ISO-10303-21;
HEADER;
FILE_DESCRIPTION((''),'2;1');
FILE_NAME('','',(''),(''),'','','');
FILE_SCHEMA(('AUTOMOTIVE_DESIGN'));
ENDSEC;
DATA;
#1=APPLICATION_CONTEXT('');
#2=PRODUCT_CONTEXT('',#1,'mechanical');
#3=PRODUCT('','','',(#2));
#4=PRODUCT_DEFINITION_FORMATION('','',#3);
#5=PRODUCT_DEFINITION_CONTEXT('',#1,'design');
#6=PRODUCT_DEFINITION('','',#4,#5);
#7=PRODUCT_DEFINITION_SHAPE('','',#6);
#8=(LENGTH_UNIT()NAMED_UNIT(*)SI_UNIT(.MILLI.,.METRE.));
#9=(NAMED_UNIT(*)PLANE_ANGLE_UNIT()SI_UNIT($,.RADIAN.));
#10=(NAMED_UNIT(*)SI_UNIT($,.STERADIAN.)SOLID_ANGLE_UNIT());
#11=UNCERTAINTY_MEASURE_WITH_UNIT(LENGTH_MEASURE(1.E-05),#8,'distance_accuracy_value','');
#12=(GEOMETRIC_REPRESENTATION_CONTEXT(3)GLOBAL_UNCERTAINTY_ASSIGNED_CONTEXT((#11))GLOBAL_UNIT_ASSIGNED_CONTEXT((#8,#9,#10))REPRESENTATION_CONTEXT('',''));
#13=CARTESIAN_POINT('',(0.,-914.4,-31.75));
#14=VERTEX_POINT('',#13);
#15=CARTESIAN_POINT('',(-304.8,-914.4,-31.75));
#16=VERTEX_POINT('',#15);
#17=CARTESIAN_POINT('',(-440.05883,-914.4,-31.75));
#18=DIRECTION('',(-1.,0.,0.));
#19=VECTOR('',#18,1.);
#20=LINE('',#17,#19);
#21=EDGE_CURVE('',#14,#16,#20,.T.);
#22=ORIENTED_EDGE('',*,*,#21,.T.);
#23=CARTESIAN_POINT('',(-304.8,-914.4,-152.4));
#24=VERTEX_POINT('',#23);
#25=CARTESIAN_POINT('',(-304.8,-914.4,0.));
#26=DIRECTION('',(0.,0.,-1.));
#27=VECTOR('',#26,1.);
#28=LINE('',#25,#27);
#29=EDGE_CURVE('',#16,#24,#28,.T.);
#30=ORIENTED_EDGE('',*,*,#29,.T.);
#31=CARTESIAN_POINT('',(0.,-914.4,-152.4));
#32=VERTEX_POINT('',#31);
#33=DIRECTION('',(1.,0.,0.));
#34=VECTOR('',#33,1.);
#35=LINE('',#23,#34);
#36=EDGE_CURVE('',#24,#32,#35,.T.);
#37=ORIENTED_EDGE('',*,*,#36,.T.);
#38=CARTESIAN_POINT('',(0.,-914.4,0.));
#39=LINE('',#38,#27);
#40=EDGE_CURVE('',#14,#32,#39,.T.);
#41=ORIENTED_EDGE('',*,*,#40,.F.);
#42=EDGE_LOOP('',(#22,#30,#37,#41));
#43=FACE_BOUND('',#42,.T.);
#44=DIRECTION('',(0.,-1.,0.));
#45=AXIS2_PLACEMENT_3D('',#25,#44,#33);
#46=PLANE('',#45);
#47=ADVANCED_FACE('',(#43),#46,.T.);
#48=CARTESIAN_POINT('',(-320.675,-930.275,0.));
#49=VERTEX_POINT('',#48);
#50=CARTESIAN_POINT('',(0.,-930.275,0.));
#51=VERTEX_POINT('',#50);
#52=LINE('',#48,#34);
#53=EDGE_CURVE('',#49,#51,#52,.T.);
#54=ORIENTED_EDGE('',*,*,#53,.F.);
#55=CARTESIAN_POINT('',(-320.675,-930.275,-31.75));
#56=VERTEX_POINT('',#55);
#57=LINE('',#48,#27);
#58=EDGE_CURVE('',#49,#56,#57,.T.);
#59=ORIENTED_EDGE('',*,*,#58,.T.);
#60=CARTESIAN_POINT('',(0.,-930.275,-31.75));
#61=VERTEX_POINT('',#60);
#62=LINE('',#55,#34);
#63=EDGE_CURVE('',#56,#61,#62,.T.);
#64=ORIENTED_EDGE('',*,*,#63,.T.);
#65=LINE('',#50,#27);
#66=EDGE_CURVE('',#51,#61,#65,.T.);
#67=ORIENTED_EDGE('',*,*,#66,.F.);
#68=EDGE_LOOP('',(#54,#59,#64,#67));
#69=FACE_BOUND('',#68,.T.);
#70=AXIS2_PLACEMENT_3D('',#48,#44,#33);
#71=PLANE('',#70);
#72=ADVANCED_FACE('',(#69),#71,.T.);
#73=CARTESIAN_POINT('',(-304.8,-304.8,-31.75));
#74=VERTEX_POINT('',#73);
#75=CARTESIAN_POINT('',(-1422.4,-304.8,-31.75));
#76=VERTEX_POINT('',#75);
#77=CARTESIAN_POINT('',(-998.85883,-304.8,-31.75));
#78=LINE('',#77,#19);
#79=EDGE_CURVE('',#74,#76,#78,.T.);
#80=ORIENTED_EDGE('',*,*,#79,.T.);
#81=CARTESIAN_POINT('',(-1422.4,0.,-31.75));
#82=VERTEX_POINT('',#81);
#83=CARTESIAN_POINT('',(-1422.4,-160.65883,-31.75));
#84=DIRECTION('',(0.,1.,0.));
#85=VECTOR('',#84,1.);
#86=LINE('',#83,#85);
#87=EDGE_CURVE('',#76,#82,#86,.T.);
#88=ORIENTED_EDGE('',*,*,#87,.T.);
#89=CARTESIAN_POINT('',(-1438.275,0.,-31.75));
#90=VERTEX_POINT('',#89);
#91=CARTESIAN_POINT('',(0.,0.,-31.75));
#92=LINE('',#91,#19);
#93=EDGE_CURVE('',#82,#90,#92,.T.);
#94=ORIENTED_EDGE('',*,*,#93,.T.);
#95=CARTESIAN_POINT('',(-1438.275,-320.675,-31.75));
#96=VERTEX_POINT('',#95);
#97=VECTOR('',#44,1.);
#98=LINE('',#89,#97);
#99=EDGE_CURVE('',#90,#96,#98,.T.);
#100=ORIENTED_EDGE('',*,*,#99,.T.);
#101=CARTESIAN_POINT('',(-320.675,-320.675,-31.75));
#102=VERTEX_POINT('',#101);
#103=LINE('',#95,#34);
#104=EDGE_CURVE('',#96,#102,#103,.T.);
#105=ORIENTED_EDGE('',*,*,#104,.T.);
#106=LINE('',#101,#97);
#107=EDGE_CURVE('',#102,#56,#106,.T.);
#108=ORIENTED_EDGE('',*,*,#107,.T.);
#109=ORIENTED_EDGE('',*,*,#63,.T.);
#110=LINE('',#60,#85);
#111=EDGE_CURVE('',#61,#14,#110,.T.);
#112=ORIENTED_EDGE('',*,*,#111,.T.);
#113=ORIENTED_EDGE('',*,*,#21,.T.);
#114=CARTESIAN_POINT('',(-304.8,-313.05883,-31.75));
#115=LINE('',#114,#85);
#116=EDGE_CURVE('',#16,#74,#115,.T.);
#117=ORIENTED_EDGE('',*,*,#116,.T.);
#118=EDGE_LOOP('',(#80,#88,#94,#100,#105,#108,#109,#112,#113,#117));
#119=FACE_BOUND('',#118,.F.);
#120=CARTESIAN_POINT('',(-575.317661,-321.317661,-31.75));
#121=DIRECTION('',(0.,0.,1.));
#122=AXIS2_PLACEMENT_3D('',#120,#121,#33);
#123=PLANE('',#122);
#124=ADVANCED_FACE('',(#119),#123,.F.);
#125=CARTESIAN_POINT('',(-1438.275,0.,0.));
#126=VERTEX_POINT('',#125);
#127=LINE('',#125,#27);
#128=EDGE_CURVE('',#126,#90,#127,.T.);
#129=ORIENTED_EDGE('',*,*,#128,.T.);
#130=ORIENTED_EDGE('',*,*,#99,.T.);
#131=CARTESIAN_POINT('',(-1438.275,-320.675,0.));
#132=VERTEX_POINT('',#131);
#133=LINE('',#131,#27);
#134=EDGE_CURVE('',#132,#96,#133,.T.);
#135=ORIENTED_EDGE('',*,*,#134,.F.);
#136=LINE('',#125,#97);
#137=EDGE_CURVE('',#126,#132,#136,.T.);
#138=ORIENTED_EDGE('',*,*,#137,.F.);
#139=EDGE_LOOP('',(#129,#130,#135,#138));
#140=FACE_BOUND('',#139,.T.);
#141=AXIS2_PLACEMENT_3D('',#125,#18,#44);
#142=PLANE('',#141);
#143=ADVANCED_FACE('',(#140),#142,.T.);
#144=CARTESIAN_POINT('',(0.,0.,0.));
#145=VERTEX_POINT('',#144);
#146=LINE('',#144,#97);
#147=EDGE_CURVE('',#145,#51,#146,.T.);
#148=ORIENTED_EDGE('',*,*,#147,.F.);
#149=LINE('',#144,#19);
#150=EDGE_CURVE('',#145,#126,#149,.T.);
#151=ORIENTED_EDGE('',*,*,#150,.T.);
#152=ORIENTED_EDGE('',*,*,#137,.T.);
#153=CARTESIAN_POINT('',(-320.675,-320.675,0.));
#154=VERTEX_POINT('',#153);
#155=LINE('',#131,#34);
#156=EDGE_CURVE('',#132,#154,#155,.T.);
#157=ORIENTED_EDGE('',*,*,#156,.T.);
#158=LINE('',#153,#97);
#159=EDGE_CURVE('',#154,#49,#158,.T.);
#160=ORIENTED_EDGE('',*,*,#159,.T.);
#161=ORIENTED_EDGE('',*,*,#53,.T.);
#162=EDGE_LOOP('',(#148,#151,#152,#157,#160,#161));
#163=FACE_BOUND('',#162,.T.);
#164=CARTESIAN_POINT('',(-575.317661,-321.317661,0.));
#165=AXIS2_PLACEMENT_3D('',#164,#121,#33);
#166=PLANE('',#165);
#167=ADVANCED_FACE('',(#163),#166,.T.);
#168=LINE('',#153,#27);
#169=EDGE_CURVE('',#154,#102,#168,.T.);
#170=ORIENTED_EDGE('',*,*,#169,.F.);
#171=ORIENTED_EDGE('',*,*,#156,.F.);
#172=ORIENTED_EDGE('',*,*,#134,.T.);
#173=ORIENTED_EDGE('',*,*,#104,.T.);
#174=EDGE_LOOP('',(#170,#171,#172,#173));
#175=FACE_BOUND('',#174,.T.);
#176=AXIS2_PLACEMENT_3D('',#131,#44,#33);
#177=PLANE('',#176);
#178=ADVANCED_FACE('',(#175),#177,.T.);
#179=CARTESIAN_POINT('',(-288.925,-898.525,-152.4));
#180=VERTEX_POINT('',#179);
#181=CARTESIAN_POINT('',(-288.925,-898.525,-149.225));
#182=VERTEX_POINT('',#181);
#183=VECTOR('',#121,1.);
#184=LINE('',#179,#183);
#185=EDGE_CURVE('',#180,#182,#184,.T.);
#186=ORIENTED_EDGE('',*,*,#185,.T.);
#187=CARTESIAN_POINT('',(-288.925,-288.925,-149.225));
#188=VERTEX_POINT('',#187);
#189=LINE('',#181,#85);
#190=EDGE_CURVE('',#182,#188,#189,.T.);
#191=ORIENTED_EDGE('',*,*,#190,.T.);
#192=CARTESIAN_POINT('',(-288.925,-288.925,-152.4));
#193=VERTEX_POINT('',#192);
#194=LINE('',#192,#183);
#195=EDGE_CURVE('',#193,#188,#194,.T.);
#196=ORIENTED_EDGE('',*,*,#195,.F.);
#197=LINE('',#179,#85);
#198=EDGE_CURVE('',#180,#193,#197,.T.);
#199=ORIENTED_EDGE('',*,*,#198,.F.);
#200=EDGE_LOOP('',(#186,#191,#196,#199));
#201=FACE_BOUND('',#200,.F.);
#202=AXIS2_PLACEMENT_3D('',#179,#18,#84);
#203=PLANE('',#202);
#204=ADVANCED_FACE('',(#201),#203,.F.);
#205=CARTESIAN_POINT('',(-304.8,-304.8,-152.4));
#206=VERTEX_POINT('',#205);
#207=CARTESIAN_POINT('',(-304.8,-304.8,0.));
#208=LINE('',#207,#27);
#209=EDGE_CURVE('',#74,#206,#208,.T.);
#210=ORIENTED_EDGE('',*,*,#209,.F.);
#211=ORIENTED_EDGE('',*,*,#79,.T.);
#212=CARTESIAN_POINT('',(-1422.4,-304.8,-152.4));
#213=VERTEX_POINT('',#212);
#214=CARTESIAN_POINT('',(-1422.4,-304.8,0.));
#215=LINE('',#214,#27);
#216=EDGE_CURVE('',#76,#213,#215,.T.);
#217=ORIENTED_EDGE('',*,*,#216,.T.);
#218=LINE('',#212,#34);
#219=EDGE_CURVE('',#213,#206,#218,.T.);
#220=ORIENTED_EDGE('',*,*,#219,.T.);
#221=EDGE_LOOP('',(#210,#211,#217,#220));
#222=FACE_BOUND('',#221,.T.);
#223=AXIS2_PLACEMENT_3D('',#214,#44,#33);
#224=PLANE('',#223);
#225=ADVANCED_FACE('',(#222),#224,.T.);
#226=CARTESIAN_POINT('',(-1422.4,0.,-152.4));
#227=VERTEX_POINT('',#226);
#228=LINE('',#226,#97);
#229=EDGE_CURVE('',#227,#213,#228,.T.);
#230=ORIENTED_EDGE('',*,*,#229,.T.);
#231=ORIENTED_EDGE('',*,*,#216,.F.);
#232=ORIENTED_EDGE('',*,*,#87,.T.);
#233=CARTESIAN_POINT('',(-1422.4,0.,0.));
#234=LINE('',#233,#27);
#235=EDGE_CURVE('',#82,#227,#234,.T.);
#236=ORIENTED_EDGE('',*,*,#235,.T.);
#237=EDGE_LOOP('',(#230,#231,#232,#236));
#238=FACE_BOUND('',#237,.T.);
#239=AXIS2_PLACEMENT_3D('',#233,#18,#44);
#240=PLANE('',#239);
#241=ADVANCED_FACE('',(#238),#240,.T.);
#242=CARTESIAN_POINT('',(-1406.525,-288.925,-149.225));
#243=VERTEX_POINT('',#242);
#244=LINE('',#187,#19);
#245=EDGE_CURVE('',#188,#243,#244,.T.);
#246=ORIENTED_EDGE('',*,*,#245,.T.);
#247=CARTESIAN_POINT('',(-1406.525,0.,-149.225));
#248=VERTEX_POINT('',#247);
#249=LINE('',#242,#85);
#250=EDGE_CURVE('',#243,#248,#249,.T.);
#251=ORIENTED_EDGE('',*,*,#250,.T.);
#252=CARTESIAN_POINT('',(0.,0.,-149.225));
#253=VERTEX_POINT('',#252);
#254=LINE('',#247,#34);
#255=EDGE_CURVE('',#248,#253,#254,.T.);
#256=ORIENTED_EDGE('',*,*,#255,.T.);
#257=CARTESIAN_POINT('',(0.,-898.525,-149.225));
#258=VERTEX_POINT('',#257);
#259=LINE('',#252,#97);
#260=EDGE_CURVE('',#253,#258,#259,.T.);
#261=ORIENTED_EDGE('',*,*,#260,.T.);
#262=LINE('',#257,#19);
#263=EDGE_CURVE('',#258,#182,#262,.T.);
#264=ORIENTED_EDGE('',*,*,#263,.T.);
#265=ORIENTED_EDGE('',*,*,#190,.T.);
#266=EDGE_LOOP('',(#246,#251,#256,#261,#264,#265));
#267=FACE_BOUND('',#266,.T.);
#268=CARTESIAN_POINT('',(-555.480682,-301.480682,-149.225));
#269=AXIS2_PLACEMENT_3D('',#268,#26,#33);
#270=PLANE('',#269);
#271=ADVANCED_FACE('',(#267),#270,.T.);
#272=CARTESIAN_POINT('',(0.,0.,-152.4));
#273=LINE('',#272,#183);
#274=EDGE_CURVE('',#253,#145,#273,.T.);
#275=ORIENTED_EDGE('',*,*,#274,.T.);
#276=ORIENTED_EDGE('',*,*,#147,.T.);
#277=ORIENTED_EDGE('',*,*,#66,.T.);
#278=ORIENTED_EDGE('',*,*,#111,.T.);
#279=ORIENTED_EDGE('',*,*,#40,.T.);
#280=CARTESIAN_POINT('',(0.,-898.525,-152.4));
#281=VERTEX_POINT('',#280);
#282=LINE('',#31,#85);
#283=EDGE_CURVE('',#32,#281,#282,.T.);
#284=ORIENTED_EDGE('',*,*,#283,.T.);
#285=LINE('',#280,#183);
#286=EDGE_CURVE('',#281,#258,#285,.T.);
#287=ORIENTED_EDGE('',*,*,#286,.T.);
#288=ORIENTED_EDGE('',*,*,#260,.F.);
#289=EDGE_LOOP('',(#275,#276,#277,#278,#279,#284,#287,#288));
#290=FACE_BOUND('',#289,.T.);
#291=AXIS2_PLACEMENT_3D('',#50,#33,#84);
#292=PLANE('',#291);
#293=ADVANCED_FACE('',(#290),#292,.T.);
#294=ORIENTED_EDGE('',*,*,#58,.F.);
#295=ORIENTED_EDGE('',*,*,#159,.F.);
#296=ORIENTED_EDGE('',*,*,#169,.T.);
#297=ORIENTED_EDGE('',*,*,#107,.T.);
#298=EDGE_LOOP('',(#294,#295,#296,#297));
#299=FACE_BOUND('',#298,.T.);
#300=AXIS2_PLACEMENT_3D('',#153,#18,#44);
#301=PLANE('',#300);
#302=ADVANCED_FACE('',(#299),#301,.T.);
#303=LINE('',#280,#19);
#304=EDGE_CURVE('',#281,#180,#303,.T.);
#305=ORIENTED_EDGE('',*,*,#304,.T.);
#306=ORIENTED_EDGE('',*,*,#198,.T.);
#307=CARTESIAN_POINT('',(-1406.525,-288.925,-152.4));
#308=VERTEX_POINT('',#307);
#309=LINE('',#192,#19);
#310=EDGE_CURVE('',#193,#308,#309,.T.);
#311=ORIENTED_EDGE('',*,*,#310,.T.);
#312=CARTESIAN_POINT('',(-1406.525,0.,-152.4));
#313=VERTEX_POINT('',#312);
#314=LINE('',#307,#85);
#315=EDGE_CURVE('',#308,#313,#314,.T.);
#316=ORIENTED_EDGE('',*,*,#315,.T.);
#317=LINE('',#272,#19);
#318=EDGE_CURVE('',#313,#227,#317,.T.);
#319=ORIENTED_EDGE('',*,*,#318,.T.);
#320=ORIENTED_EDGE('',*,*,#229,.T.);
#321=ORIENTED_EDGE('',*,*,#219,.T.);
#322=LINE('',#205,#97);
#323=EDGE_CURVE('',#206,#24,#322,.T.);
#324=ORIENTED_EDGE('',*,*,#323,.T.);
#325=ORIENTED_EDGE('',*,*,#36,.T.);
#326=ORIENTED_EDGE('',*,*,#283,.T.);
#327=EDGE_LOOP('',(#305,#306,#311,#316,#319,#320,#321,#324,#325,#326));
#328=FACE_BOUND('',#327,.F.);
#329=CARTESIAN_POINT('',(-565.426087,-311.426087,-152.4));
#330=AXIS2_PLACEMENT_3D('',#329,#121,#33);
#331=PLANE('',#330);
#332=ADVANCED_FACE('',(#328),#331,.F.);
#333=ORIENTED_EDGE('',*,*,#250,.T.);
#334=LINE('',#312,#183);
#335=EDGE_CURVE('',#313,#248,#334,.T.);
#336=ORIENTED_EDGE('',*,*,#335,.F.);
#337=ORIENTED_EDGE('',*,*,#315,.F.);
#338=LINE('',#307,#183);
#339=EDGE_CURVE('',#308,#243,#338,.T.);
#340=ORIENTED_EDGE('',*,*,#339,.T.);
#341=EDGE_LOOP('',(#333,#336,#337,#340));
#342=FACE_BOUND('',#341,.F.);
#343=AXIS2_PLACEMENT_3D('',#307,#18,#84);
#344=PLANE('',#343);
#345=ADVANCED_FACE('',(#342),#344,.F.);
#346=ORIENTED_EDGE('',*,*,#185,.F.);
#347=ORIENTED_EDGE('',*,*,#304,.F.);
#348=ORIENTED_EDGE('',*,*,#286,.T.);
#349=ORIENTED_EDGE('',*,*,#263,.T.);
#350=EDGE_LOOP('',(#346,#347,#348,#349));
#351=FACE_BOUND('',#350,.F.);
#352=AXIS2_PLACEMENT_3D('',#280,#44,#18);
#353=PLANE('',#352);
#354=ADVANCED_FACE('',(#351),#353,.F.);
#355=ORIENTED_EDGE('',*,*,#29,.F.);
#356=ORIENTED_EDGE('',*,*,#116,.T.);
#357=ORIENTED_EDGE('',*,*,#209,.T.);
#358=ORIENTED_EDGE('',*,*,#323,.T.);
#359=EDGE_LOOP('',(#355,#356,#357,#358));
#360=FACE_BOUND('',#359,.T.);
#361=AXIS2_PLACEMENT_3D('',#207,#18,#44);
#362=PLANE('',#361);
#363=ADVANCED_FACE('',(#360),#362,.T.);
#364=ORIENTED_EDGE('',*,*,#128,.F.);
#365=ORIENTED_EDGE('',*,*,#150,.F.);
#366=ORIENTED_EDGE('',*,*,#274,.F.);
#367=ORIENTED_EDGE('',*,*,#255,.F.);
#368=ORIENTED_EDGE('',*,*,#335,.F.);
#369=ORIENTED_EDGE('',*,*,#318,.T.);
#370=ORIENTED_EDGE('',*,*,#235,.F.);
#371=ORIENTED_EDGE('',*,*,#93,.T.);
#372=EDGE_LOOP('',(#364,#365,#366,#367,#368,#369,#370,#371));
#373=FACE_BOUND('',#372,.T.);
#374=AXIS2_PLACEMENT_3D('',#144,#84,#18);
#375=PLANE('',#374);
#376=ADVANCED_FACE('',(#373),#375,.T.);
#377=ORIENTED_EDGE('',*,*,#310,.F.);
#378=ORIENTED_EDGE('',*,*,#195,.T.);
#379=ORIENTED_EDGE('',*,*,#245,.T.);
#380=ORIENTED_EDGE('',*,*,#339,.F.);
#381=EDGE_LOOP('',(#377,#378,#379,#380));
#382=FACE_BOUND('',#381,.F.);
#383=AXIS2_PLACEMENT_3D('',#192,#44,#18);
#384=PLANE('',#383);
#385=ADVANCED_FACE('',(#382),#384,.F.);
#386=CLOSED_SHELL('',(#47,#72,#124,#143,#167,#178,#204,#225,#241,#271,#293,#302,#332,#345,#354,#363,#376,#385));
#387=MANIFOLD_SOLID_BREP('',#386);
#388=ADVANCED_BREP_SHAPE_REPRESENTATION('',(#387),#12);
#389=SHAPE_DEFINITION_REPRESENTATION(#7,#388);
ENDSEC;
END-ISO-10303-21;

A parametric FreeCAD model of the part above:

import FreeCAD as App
import Part
import Sketcher
from FreeCAD import Vector
Q = App.Units.Quantity


def add_polygon(sketch, points):
    """Adds a closed chain of lines whose ends are joined by coincident constraints."""
    first, n = sketch.GeometryCount, len(points)
    for a, b in zip(points, points[1:] + points[:1]):
        sketch.addGeometry(Part.LineSegment(App.Vector(*a, 0), App.Vector(*b, 0)), False)
    for i in range(n):
        sketch.addConstraint(Sketcher.Constraint("Coincident", first + i, 2, first + (i + 1) % n, 1))

doc = App.newDocument("Part")
body = doc.addObject("PartDesign::Body", "Body")

sketch1 = body.newObject("Sketcher::SketchObject", "Sketch")
sketch1.AttachmentSupport = (doc.getObject("XY_Plane"), [""])
sketch1.MapMode = "FlatFace"
add_polygon(sketch1, [(0, 0), (-1422.4, 0), (-1422.4, -304.8), (-304.8, -304.8), (-304.8, -914.4), (0, -914.4)])
sketch1.addConstraint([
    Sketcher.Constraint("Horizontal", 0),
    Sketcher.Constraint("Vertical", 1),
    Sketcher.Constraint("Horizontal", 2),
    Sketcher.Constraint("Vertical", 3),
    Sketcher.Constraint("Horizontal", 4),
    Sketcher.Constraint("Vertical", 5),
    Sketcher.Constraint("Coincident", 5, 2, -1, 1),
    Sketcher.Constraint("Equal", 4, 1),
    Sketcher.Constraint("DistanceX", 0, 2, 0, 1, Q("56 in")),
    Sketcher.Constraint("DistanceX", 2, 1, 2, 2, Q("44 in")),
    Sketcher.Constraint("DistanceY", 3, 2, 3, 1, Q("24 in")),
])
pad1 = body.newObject("PartDesign::Pad", "Pad")
pad1.Profile = sketch1
pad1.Length = Q("6 in")
pad1.Reversed = True

sketch2 = body.newObject("Sketcher::SketchObject", "Sketch001")
sketch2.AttachmentSupport = (doc.getObject("XY_Plane"), [""])
sketch2.MapMode = "FlatFace"
add_polygon(sketch2, [(0, -930.275), (0, 0), (-1438.275, 0), (-1438.275, -320.675), (-320.675, -320.675), (-320.675, -930.275)])
sketch2.addConstraint([
    Sketcher.Constraint("Vertical", 0),
    Sketcher.Constraint("Horizontal", 1),
    Sketcher.Constraint("Vertical", 2),
    Sketcher.Constraint("Horizontal", 3),
    Sketcher.Constraint("Vertical", 4),
    Sketcher.Constraint("Horizontal", 5),
    Sketcher.Constraint("Coincident", 0, 2, -1, 1),
    Sketcher.Constraint("Equal", 5, 2),
    Sketcher.Constraint("DistanceX", 3, 1, 3, 2, Q("44 in")),
    Sketcher.Constraint("DistanceY", 4, 2, 4, 1, Q("24 in")),
    Sketcher.Constraint("DistanceX", 1, 2, 1, 1, Q("56.625 in")),
])
pad2 = body.newObject("PartDesign::Pad", "Pad001")
pad2.Profile = sketch2
pad2.Length = Q("1.25 in")
pad2.Reversed = True

sketch3 = body.newObject("Sketcher::SketchObject", "Sketch002")
sketch3.AttachmentSupport = (doc.getObject("XY_Plane"), [""])
sketch3.MapMode = "FlatFace"
sketch3.AttachmentOffset = App.Placement(Vector(0, 0, -6 * 25.4), App.Rotation())
add_polygon(sketch3, [(-288.925, -288.925), (-1406.525, -288.925), (-1406.525, 0), (0, 0), (0, -898.525), (-288.925, -898.525)])
sketch3.addConstraint([
    Sketcher.Constraint("Horizontal", 0),
    Sketcher.Constraint("Vertical", 1),
    Sketcher.Constraint("Horizontal", 2),
    Sketcher.Constraint("Vertical", 3),
    Sketcher.Constraint("Horizontal", 4),
    Sketcher.Constraint("Vertical", 5),
    Sketcher.Constraint("Coincident", 2, 2, -1, 1),
    Sketcher.Constraint("Equal", 4, 1),
    Sketcher.Constraint("DistanceX", 0, 2, 0, 1, Q("44 in")),
    Sketcher.Constraint("DistanceY", 5, 1, 5, 2, Q("24 in")),
    Sketcher.Constraint("DistanceX", 2, 1, 2, 2, Q("55.375 in")),
])
pocket1 = body.newObject("PartDesign::Pocket", "Pocket")
pocket1.Profile = sketch3
pocket1.Length = Q("0.125 in")
pocket1.Reversed = True

doc.recompute()
